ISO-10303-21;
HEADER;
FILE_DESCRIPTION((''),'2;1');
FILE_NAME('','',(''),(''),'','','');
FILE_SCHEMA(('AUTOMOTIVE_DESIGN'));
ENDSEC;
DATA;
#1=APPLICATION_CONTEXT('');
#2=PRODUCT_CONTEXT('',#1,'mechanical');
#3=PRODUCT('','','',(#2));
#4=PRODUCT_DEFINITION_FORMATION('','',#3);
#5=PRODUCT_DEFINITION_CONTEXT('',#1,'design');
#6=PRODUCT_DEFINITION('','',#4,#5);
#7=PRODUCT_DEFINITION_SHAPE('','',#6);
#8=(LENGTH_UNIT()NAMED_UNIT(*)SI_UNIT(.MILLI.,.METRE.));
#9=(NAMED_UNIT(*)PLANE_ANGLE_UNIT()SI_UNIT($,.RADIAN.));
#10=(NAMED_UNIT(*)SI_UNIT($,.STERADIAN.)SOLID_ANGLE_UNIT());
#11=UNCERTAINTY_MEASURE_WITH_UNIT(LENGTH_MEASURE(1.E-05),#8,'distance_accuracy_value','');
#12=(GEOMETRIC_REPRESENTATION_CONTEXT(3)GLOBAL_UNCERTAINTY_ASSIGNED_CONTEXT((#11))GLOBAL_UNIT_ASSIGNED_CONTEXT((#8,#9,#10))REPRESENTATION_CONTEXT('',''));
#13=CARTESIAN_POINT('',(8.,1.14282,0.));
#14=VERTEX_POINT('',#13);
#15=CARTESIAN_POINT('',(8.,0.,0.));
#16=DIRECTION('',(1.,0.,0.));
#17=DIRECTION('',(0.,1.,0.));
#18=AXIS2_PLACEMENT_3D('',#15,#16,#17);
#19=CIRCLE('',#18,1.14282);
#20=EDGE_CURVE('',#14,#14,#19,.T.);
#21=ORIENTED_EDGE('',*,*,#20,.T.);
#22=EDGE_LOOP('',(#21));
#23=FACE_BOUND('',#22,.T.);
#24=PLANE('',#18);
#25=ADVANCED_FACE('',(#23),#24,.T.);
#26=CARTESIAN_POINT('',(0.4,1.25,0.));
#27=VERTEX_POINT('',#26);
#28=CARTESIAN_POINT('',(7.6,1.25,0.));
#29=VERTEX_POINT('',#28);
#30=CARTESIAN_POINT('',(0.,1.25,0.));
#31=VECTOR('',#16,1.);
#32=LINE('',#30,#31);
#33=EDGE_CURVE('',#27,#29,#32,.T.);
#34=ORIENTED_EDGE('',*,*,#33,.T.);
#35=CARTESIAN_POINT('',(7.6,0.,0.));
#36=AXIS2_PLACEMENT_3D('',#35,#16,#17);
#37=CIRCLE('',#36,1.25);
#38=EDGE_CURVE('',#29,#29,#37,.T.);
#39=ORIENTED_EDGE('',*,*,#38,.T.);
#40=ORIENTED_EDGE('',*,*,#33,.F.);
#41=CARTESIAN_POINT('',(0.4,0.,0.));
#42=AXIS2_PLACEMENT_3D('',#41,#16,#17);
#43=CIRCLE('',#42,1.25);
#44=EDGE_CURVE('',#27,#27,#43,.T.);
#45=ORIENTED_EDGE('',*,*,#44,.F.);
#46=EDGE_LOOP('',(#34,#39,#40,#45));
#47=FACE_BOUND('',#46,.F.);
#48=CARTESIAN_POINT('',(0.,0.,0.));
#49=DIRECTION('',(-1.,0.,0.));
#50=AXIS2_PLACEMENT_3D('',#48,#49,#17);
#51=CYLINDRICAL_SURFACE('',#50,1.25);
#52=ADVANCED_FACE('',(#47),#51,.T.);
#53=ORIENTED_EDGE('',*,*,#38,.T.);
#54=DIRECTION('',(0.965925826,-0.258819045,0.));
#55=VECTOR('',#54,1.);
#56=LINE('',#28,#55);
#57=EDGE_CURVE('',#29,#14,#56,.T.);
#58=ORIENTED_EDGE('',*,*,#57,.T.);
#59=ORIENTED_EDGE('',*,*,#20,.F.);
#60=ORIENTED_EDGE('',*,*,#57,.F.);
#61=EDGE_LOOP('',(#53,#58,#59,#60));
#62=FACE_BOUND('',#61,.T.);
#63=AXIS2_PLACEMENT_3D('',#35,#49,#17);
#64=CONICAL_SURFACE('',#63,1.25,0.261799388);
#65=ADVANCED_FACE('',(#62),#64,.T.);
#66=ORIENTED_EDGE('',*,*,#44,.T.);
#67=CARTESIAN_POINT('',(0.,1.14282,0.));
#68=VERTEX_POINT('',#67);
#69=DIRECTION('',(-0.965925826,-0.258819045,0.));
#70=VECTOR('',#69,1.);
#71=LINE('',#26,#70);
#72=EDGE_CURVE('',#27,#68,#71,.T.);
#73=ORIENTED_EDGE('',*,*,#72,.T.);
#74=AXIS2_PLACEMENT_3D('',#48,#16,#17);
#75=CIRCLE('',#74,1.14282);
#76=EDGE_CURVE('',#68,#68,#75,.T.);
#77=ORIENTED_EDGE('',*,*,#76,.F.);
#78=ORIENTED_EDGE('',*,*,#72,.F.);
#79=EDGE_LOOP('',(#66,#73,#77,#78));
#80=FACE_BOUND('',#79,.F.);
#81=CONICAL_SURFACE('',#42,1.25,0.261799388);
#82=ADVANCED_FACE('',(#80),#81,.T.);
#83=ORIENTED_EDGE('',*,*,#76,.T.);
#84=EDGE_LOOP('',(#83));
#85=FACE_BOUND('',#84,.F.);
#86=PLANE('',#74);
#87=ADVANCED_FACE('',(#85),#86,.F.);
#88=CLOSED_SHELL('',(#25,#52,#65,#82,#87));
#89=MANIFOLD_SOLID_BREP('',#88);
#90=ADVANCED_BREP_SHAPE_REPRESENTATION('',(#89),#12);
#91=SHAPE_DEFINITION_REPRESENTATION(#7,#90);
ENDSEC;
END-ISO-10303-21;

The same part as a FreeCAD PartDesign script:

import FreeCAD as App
import Part
import Sketcher
Q = App.Units.Quantity


def edges_at(feature, points):
    """Names of the edges that pass closest to the given points."""
    edges = feature.Shape.Edges
    near = lambda p: min(range(len(edges)), key=lambda i: edges[i].distToShape(Part.Vertex(*p))[0])
    return sorted({f"Edge{near(p) + 1}" for p in points})

doc = App.newDocument("Part")
body = doc.addObject("PartDesign::Body", "Body")

# Sketch on YZ plane
sketch1 = doc.addObject("Sketcher::SketchObject", "Sketch")
body.addObject(sketch1)
sketch1.AttachmentSupport = (doc.YZ_Plane, [""])
sketch1.MapMode = "FlatFace"
sketch1.addGeometry(Part.Circle(App.Vector(0, 0, 0), App.Vector(0, 0, 1), 1.25), False)
sketch1.addConstraint(Sketcher.Constraint("Coincident", 0, 3, -1, 1))
sketch1.addConstraint(Sketcher.Constraint("Diameter", 0, Q("2.5 mm")))
pad1 = doc.addObject("PartDesign::Pad", "Pad")
body.addObject(pad1)
pad1.Profile = sketch1
pad1.Length = 8
doc.recompute()

chamfer = doc.addObject("PartDesign::Chamfer", "Chamfer")
body.addObject(chamfer)
chamfer.Base = (pad1, edges_at(pad1, [(0, -1.25, 0)]))
chamfer.ChamferType = "Distance and Angle"
chamfer.Size = 0.4
chamfer.Angle = 15
doc.recompute()

chamfer2 = doc.addObject("PartDesign::Chamfer", "Chamfer001")
body.addObject(chamfer2)
chamfer2.Base = (chamfer, edges_at(chamfer, [(8, -1.25, 0)]))
chamfer2.ChamferType = "Distance and Angle"
chamfer2.Size = 0.4
chamfer2.Angle = 15

doc.recompute()
